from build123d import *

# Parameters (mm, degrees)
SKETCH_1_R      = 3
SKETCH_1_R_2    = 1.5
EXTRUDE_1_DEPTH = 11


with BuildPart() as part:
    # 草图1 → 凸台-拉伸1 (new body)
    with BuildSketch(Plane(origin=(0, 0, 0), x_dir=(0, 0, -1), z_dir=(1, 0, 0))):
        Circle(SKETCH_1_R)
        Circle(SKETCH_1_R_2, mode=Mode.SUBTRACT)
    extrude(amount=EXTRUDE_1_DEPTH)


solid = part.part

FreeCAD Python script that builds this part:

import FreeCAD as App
import Part
import Sketcher
from FreeCAD import Vector
Q = App.Units.Quantity

doc = App.newDocument("Part")
params = doc.addObject("Spreadsheet::Sheet", "Params")
for row, (alias, value) in enumerate([
    ("sketch1_diameter", "6 mm"),
    ("sketch1_diameter2", "3 mm"),
    ("pad1_length", "11 mm"),
], start=1):
    params.set(f"A{row}", alias)
    params.set(f"B{row}", "=" + value)
    params.setAlias(f"B{row}", alias)

body = doc.addObject("PartDesign::Body", "Body")

sketch1 = doc.addObject("Sketcher::SketchObject", "Sketch")
body.addObject(sketch1)
sketch1.AttachmentSupport = (doc.YZ_Plane, [""])
sketch1.MapMode = "FlatFace"
sketch1.addGeometry([
    Part.Circle(Vector(0, 0, 0), Vector(0, 0, 1), 3),
    Part.Circle(Vector(0, 0, 0), Vector(0, 0, 1), 1.5),
], False)
sketch1.addConstraint([
    Sketcher.Constraint("Coincident", 0, 3, -1, 1),
    Sketcher.Constraint("Coincident", 1, 3, -1, 1),
    Sketcher.Constraint("Diameter", 0, Q("6 mm")),
    Sketcher.Constraint("Diameter", 1, Q("3 mm")),
])
sketch1.setExpression("Constraints[2]", "Params.sketch1_diameter")
sketch1.setExpression("Constraints[3]", "Params.sketch1_diameter2")
pad1 = doc.addObject("PartDesign::Pad", "Pad")
body.addObject(pad1)
pad1.Profile = sketch1
pad1.setExpression("Length", "Params.pad1_length")

doc.recompute()
